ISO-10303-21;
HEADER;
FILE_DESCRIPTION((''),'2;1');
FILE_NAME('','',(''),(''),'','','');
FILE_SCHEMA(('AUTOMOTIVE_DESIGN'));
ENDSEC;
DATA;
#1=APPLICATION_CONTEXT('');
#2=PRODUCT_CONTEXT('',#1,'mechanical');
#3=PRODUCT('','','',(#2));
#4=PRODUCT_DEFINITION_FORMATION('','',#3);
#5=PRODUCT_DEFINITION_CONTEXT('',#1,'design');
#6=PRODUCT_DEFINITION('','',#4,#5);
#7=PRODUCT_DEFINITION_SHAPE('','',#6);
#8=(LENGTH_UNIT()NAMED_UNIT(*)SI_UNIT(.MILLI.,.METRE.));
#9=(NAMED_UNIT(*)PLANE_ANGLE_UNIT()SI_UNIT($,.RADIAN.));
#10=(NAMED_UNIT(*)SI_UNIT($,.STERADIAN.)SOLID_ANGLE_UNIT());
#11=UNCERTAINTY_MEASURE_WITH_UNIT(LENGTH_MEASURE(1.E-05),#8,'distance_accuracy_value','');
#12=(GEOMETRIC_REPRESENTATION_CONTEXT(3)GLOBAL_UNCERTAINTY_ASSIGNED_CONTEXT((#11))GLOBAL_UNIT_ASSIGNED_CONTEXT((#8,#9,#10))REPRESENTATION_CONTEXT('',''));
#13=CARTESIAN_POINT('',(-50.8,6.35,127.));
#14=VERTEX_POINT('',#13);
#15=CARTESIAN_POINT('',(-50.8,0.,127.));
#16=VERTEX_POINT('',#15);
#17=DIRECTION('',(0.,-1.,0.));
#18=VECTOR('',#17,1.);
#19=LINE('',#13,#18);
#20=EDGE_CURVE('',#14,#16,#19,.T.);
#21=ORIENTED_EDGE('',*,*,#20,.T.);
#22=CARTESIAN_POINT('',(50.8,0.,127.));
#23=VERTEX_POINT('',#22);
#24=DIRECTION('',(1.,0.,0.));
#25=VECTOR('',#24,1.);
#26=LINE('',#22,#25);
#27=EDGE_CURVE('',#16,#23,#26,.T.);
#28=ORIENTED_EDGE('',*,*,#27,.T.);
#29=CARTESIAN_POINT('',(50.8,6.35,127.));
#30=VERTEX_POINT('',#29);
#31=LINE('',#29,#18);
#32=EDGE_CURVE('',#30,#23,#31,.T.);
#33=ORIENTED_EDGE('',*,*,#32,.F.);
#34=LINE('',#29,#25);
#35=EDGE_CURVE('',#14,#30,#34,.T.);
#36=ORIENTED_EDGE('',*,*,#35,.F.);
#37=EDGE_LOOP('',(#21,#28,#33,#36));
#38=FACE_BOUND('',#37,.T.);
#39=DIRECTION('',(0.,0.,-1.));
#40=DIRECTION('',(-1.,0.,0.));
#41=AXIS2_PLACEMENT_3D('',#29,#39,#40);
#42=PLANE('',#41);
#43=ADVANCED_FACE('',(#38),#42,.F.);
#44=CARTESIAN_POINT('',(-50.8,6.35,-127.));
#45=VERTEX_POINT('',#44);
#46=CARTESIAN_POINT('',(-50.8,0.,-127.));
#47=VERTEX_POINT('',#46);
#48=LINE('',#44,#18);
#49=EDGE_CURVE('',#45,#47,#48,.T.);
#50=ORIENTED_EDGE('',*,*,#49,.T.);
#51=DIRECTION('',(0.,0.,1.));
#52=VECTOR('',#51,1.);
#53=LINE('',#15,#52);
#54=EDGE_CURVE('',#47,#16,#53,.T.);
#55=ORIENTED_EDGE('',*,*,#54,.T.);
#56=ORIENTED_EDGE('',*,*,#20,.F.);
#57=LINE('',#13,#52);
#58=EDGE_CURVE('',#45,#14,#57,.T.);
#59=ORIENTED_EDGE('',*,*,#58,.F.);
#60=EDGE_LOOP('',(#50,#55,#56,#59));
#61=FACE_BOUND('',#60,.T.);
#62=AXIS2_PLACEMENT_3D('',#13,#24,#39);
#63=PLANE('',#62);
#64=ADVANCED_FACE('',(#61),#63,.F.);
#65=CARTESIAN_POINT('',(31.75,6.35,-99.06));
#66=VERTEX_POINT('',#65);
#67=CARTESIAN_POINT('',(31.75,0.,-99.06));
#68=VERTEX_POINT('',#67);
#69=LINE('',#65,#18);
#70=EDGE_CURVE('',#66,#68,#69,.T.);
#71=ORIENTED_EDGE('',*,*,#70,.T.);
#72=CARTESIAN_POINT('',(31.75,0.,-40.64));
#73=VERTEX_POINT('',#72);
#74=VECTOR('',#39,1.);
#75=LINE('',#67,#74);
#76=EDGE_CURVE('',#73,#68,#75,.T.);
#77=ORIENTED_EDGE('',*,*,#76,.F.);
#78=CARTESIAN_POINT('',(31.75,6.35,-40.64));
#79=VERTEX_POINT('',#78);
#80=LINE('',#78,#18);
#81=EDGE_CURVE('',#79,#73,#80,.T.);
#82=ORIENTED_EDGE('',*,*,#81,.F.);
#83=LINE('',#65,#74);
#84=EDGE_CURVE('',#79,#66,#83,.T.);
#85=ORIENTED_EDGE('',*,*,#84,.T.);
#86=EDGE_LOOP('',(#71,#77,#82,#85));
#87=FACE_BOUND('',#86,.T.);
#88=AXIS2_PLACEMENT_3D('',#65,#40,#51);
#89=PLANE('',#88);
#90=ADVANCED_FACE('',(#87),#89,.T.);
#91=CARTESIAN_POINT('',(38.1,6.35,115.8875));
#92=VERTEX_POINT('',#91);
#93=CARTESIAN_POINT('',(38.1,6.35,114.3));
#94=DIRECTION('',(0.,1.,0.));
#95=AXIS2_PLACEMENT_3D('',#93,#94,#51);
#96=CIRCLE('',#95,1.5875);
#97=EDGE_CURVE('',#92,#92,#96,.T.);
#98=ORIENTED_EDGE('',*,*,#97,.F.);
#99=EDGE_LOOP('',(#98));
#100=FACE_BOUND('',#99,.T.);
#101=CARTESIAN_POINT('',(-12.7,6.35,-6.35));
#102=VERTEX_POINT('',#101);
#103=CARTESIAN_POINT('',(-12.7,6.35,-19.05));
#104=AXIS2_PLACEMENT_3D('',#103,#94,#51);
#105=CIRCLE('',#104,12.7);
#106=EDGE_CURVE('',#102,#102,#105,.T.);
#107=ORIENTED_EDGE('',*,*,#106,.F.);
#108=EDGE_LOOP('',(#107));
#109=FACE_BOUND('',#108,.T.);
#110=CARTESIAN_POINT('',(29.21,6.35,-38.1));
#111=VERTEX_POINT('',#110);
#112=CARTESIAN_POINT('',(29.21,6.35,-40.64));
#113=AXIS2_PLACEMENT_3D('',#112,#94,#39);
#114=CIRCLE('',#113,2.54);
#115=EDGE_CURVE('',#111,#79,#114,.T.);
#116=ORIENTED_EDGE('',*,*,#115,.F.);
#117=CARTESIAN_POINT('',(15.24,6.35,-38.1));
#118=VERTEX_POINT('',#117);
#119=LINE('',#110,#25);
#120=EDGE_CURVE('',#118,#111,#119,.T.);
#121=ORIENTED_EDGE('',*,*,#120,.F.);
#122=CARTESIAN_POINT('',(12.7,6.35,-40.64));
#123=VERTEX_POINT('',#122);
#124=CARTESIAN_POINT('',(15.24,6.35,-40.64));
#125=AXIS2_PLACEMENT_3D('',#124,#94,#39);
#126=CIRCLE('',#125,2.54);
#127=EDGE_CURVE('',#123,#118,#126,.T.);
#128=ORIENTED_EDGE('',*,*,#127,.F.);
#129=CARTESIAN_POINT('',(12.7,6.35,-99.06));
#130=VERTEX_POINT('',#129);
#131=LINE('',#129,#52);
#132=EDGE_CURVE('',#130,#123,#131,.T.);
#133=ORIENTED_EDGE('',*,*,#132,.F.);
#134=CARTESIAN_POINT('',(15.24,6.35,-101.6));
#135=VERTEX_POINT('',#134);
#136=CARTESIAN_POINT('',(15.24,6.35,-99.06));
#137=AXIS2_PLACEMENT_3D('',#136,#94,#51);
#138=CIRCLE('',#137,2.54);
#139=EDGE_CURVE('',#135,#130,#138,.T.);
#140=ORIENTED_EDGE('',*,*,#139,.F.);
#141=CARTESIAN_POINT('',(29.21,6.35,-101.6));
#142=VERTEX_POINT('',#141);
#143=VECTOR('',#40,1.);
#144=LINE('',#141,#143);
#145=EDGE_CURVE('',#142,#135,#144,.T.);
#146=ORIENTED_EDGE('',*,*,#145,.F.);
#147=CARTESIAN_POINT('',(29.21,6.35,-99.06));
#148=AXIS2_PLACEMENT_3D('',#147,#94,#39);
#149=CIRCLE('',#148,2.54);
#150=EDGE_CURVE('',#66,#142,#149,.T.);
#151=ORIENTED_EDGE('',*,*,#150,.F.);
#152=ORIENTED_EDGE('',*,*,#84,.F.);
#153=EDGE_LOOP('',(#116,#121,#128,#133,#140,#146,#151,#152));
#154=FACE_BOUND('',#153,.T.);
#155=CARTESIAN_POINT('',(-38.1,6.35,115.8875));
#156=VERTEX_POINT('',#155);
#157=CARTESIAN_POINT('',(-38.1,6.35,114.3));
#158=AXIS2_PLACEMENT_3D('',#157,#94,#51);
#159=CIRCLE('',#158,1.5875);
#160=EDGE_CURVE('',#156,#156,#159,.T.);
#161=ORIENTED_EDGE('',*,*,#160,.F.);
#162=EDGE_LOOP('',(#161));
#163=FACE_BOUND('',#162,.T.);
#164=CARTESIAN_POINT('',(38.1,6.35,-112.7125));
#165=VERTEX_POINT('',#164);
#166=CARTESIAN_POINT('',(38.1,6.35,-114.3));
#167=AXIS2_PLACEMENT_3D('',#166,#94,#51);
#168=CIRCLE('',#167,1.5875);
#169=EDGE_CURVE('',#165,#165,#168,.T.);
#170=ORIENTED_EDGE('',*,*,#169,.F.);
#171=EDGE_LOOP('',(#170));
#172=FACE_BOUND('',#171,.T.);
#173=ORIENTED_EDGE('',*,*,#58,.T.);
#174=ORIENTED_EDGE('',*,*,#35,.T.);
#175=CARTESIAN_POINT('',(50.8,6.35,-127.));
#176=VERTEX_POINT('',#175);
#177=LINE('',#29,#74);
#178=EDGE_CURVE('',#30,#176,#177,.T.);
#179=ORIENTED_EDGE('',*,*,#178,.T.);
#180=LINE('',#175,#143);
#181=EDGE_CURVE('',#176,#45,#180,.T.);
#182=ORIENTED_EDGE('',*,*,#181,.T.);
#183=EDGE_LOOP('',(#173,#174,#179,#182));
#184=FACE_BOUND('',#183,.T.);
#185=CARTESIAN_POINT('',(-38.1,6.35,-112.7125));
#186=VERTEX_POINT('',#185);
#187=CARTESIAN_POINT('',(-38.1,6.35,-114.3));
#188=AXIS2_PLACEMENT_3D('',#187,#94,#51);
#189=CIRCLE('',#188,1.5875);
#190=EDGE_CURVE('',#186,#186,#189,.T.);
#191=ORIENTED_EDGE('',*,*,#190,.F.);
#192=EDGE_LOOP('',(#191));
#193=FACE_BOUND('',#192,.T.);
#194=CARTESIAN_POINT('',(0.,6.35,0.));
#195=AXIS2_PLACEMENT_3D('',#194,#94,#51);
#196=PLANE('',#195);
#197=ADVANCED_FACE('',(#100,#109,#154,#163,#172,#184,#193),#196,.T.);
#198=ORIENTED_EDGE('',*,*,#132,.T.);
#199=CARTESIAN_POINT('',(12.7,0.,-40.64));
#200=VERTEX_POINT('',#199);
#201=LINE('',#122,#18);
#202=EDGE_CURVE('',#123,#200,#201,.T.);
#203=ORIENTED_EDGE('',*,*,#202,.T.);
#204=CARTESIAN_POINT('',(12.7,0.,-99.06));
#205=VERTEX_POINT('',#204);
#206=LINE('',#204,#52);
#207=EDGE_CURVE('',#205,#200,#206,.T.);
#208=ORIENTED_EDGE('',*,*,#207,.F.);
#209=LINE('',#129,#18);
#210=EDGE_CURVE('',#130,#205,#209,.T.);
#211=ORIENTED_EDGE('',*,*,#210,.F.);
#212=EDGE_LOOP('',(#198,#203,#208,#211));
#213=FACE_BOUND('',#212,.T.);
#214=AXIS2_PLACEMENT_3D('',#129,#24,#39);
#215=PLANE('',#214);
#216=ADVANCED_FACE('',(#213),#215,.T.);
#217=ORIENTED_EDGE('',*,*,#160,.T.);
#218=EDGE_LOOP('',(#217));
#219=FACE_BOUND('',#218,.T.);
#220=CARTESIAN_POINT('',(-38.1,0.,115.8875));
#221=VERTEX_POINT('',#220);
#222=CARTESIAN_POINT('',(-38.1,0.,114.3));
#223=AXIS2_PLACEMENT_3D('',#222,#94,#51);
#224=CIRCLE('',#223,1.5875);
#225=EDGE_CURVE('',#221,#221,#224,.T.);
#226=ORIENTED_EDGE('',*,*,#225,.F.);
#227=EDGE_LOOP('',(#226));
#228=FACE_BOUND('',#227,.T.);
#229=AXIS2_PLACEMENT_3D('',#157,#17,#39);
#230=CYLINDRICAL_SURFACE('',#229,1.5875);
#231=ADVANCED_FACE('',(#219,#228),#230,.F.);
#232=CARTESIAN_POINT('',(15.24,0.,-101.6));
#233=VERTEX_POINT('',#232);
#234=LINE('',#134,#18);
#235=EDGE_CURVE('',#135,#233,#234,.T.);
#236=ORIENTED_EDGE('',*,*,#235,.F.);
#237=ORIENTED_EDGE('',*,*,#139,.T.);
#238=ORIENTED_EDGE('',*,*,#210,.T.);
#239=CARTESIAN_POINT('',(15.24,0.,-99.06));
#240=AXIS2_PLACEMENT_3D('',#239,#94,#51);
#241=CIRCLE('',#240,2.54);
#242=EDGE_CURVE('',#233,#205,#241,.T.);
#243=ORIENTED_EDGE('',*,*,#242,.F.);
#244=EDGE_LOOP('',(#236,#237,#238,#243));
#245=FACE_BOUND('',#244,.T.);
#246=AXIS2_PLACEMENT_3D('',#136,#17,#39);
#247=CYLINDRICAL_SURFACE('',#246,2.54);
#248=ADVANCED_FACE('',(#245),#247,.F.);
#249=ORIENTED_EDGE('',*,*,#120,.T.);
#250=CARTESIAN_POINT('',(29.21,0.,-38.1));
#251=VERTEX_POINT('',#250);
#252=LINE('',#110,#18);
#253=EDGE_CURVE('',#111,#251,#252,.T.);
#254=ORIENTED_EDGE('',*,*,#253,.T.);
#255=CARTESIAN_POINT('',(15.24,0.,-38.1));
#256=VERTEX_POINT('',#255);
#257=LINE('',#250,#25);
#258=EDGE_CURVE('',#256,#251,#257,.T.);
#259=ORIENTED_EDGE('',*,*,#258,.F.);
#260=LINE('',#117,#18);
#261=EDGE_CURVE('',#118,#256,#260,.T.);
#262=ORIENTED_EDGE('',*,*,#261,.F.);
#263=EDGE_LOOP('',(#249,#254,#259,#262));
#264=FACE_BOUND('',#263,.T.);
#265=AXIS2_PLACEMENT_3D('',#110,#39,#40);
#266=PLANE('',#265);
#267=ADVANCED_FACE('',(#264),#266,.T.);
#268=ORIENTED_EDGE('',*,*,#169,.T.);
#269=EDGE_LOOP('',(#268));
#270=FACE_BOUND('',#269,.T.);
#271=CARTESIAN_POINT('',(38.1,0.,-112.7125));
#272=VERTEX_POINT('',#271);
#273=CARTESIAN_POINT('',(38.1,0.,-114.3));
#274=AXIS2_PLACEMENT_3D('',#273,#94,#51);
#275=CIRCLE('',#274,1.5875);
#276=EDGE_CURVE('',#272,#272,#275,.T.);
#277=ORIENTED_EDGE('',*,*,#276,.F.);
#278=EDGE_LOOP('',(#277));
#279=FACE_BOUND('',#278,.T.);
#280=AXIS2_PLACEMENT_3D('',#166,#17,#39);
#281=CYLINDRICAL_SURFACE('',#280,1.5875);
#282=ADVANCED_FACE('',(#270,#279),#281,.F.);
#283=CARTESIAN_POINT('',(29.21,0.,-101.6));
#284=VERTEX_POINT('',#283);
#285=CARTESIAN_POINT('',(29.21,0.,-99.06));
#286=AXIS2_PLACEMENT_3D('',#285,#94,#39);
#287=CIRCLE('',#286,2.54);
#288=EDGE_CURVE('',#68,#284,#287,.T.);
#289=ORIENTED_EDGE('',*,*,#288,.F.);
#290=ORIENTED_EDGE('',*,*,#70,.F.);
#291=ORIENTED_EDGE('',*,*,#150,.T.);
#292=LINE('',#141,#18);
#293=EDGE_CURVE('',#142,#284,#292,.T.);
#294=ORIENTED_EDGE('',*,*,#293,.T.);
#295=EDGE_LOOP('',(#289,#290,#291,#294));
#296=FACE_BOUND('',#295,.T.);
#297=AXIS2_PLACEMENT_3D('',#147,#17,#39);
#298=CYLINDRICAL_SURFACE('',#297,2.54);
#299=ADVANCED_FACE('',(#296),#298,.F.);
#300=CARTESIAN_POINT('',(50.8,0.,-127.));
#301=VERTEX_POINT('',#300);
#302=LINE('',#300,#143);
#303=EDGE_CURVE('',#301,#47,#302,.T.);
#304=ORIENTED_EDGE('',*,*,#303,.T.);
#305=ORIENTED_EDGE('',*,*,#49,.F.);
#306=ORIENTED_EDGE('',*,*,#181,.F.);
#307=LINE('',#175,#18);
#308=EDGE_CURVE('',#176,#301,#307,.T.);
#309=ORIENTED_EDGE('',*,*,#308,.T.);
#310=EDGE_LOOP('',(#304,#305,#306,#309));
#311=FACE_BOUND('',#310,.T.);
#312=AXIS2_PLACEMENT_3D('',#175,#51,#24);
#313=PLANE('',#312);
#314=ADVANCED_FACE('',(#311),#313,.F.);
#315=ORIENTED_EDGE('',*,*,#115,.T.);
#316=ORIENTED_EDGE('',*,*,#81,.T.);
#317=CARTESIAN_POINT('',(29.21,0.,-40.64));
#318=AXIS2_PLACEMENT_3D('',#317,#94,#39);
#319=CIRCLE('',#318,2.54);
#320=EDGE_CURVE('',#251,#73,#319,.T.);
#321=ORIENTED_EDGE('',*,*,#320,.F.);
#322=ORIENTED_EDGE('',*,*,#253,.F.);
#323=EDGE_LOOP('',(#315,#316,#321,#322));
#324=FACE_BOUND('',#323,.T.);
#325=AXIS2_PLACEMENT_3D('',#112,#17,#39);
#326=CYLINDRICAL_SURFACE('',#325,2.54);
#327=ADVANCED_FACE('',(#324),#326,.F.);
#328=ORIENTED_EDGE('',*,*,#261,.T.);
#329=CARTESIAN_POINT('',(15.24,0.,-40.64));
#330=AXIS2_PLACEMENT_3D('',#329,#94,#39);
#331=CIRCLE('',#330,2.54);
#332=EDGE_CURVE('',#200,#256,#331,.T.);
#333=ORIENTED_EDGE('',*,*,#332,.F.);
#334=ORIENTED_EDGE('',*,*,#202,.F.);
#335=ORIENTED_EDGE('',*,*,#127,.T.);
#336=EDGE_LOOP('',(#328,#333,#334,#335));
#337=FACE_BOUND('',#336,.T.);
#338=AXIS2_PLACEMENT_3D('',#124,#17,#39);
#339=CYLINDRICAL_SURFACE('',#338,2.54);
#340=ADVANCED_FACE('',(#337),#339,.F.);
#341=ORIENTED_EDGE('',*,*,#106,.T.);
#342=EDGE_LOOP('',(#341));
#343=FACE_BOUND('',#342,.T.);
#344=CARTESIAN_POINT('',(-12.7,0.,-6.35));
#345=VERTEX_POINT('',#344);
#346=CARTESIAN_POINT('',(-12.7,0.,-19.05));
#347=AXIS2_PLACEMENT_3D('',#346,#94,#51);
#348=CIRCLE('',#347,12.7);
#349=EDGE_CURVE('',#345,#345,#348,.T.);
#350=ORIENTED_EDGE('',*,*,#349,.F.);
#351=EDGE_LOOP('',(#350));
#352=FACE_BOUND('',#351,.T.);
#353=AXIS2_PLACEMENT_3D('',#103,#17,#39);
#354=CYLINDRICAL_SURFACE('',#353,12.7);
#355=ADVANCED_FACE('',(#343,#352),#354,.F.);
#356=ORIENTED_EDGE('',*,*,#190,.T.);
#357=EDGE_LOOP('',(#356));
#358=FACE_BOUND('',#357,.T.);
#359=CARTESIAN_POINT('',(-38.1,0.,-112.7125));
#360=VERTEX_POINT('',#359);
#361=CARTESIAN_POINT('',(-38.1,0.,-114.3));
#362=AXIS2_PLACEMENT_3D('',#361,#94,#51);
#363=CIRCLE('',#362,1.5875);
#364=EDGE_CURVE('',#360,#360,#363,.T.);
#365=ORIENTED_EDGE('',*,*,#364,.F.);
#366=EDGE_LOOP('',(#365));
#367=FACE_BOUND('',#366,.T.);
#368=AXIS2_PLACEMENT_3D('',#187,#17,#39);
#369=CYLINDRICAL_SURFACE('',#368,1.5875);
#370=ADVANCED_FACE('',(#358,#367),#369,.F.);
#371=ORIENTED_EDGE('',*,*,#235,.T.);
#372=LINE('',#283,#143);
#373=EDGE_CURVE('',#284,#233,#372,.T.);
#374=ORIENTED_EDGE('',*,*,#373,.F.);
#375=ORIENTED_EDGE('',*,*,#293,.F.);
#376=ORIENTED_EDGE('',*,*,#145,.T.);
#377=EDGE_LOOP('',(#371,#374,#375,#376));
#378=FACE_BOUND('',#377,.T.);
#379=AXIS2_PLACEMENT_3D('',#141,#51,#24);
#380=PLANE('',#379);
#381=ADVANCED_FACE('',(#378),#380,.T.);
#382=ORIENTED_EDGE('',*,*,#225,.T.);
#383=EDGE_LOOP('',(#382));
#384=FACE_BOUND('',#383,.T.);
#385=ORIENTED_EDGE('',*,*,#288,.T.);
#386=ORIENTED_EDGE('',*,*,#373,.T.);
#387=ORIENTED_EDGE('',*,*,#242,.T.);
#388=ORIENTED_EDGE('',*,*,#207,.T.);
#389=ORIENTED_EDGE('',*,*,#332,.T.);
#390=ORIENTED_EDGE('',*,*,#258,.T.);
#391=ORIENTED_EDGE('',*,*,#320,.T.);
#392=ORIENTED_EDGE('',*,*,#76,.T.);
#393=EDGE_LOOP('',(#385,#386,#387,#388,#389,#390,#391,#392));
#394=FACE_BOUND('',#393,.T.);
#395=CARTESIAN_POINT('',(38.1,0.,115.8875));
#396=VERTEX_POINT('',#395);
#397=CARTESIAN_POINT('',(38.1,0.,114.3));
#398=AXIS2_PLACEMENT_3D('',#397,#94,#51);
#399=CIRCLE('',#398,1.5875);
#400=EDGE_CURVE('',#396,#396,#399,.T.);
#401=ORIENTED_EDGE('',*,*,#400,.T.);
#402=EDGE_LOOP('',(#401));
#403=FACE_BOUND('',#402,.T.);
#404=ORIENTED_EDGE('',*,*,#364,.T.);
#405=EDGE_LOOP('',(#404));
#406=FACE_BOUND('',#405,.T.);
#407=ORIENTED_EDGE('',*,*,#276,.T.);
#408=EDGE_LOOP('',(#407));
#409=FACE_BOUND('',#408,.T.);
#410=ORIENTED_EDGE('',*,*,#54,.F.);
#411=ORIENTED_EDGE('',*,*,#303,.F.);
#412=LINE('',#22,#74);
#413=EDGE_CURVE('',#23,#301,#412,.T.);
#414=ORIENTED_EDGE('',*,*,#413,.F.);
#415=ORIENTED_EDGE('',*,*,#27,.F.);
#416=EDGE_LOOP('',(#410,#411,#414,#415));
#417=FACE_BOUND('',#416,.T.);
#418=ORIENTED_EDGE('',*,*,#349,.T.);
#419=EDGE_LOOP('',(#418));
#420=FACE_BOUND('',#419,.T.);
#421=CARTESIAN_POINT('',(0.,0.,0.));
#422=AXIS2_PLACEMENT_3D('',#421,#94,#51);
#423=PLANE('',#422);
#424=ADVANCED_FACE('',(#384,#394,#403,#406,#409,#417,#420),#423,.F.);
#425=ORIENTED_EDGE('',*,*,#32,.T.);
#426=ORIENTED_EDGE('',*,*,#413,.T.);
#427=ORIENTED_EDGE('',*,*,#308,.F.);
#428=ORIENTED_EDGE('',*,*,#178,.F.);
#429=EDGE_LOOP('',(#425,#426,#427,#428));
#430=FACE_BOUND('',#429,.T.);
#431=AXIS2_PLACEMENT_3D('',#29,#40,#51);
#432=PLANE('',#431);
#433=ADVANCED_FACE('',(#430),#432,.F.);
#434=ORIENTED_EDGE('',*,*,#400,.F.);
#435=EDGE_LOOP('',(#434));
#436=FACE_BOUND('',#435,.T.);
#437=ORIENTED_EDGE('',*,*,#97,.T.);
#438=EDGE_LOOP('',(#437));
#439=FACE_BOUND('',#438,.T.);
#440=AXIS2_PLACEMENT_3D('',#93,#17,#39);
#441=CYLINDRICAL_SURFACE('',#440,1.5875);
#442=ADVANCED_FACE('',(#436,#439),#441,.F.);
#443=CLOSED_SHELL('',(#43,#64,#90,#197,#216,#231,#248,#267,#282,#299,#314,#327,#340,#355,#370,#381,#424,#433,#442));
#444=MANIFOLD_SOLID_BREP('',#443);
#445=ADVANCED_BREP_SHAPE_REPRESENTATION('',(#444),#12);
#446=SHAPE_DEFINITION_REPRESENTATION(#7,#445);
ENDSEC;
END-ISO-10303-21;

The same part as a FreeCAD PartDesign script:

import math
import FreeCAD as App
import Part
import Sketcher
from FreeCAD import Vector
Q = App.Units.Quantity

doc = App.newDocument("Part")
params = doc.addObject("Spreadsheet::Sheet", "Params")
for row, (alias, value) in enumerate([
    ("sketch1_diameter", "1 in"),
    ("sketch1_radius", "0.1 in"),
    ("sketch1_width", "4 in"),
    ("sketch1_height", "10 in"),
    ("sketch1_diameter2", "0.125 in"),
    ("pad1_length", "0.25 in"),
], start=1):
    params.set(f"A{row}", alias)
    params.set(f"B{row}", "=" + value)
    params.setAlias(f"B{row}", alias)

body = doc.addObject("PartDesign::Body", "Body")

# Sketch on XZ plane
sketch1 = doc.addObject("Sketcher::SketchObject", "Sketch")
body.addObject(sketch1)
sketch1.AttachmentSupport = (doc.XZ_Plane, [""])
sketch1.MapMode = "FlatFace"
sketch1.addGeometry(Part.LineSegment(Vector(-50.8, -127, 0), Vector(-50.8, 127, 0)), False)
sketch1.addGeometry(Part.LineSegment(Vector(-50.8, 127, 0), Vector(50.8, 127, 0)), False)
sketch1.addGeometry(Part.LineSegment(Vector(50.8, 127, 0), Vector(50.8, -127, 0)), False)
sketch1.addGeometry(Part.LineSegment(Vector(50.8, -127, 0), Vector(-50.8, -127, 0)), False)
sketch1.addGeometry(Part.Circle(Vector(-38.1, 114.3, 0), Vector(0, 0, 1), 1.5875), False)
sketch1.addGeometry(Part.Circle(Vector(38.1, 114.3, 0), Vector(0, 0, 1), 1.5875), False)
sketch1.addGeometry(Part.Circle(Vector(-12.7, -19.05, 0), Vector(0, 0, 1), 12.7), False)
sketch1.addGeometry(Part.Circle(Vector(-38.1, -114.3, 0), Vector(0, 0, 1), 1.5875), False)
sketch1.addGeometry(Part.LineSegment(Vector(15.24, -101.6, 0), Vector(29.21, -101.6, 0)), False)
sketch1.addGeometry(Part.ArcOfCircle(Part.Circle(Vector(29.21, -99.06, 0), Vector(0, 0, 1), 2.54), math.radians(-90), math.radians(0)), False)
sketch1.addGeometry(Part.LineSegment(Vector(31.75, -99.06, 0), Vector(31.75, -40.64, 0)), False)
sketch1.addGeometry(Part.ArcOfCircle(Part.Circle(Vector(29.21, -40.64, 0), Vector(0, 0, 1), 2.54), math.radians(0), math.radians(90)), False)
sketch1.addGeometry(Part.LineSegment(Vector(29.21, -38.1, 0), Vector(15.24, -38.1, 0)), False)
sketch1.addGeometry(Part.ArcOfCircle(Part.Circle(Vector(15.24, -40.64, 0), Vector(0, 0, 1), 2.54), math.radians(90), math.radians(180)), False)
sketch1.addGeometry(Part.LineSegment(Vector(12.7, -40.64, 0), Vector(12.7, -99.06, 0)), False)
sketch1.addGeometry(Part.ArcOfCircle(Part.Circle(Vector(15.24, -99.06, 0), Vector(0, 0, 1), 2.54), math.radians(-180), math.radians(-90)), False)
sketch1.addGeometry(Part.Circle(Vector(38.1, -114.3, 0), Vector(0, 0, 1), 1.5875), False)
sketch1.addConstraint(Sketcher.Constraint("Coincident", 0, 2, 1, 1))
sketch1.addConstraint(Sketcher.Constraint("Coincident", 1, 2, 2, 1))
sketch1.addConstraint(Sketcher.Constraint("Coincident", 2, 2, 3, 1))
sketch1.addConstraint(Sketcher.Constraint("Coincident", 3, 2, 0, 1))
sketch1.addConstraint(Sketcher.Constraint("Tangent", 8, 2, 9, 1))
sketch1.addConstraint(Sketcher.Constraint("Tangent", 9, 2, 10, 1))
sketch1.addConstraint(Sketcher.Constraint("Tangent", 10, 2, 11, 1))
sketch1.addConstraint(Sketcher.Constraint("Tangent", 11, 2, 12, 1))
sketch1.addConstraint(Sketcher.Constraint("Tangent", 12, 2, 13, 1))
sketch1.addConstraint(Sketcher.Constraint("Tangent", 13, 2, 14, 1))
sketch1.addConstraint(Sketcher.Constraint("Tangent", 14, 2, 15, 1))
sketch1.addConstraint(Sketcher.Constraint("Tangent", 15, 2, 8, 1))
sketch1.addConstraint(Sketcher.Constraint("Vertical", 0))
sketch1.addConstraint(Sketcher.Constraint("Horizontal", 1))
sketch1.addConstraint(Sketcher.Constraint("Vertical", 2))
sketch1.addConstraint(Sketcher.Constraint("Horizontal", 3))
sketch1.addConstraint(Sketcher.Constraint("Horizontal", 8))
sketch1.addConstraint(Sketcher.Constraint("Vertical", 10))
sketch1.addConstraint(Sketcher.Constraint("Horizontal", 12))
sketch1.addConstraint(Sketcher.Constraint("Vertical", 14))
sketch1.addConstraint(Sketcher.Constraint("Equal", 4, 5))
sketch1.addConstraint(Sketcher.Constraint("Equal", 5, 7))
sketch1.addConstraint(Sketcher.Constraint("Equal", 9, 11))
sketch1.addConstraint(Sketcher.Constraint("Equal", 11, 13))
sketch1.addConstraint(Sketcher.Constraint("Equal", 13, 15))
sketch1.addConstraint(Sketcher.Constraint("Equal", 7, 16))
sketch1.addConstraint(Sketcher.Constraint("Symmetric", 5, 3, 7, 3, -1, 1))
sketch1.addConstraint(Sketcher.Constraint("Symmetric", 4, 3, 16, 3, -1, 1))
sketch1.addConstraint(Sketcher.Constraint("Symmetric", 0, 2, 2, 2, -1, 1))
sketch1.addConstraint(Sketcher.Constraint("Symmetric", 4, 3, 5, 3, -2))
sketch1.addConstraint(Sketcher.Constraint("Diameter", 6, Q("1 in")))
sketch1.addConstraint(Sketcher.Constraint("Radius", 9, Q("0.1 in")))
sketch1.addConstraint(Sketcher.Constraint("DistanceX", 1, 1, 1, 2, Q("4 in")))
sketch1.addConstraint(Sketcher.Constraint("DistanceY", 0, 1, 0, 2, Q("10 in")))
sketch1.addConstraint(Sketcher.Constraint("Diameter", 4, Q("0.125 in")))
sketch1.addConstraint(Sketcher.Constraint("DistanceY", 10, 1, 10, 2, Q("2.3 in")))
sketch1.addConstraint(Sketcher.Constraint("DistanceY", 8, 2, -1, 1, Q("4 in")))
sketch1.addConstraint(Sketcher.Constraint("DistanceX", 4, 3, 5, 3, Q("3 in")))
sketch1.addConstraint(Sketcher.Constraint("DistanceX", 4, 3, 6, 3, Q("1 in")))
sketch1.addConstraint(Sketcher.Constraint("DistanceY", 7, 3, 4, 3, Q("9 in")))
sketch1.addConstraint(Sketcher.Constraint("DistanceX", 14, 2, 16, 3, Q("1 in")))
sketch1.addConstraint(Sketcher.Constraint("DistanceX", 8, 1, 8, 2, Q("0.55 in")))
sketch1.addConstraint(Sketcher.Constraint("DistanceY", 6, 3, -1, 1, Q("0.75 in")))
sketch1.setExpression("Constraints[30]", "Params.sketch1_diameter")
sketch1.setExpression("Constraints[31]", "Params.sketch1_radius")
sketch1.setExpression("Constraints[32]", "Params.sketch1_width")
sketch1.setExpression("Constraints[33]", "Params.sketch1_height")
sketch1.setExpression("Constraints[34]", "Params.sketch1_diameter2")
pad1 = doc.addObject("PartDesign::Pad", "Pad")
body.addObject(pad1)
pad1.Profile = sketch1
pad1.setExpression("Length", "Params.pad1_length")
pad1.Reversed = True

doc.recompute()
